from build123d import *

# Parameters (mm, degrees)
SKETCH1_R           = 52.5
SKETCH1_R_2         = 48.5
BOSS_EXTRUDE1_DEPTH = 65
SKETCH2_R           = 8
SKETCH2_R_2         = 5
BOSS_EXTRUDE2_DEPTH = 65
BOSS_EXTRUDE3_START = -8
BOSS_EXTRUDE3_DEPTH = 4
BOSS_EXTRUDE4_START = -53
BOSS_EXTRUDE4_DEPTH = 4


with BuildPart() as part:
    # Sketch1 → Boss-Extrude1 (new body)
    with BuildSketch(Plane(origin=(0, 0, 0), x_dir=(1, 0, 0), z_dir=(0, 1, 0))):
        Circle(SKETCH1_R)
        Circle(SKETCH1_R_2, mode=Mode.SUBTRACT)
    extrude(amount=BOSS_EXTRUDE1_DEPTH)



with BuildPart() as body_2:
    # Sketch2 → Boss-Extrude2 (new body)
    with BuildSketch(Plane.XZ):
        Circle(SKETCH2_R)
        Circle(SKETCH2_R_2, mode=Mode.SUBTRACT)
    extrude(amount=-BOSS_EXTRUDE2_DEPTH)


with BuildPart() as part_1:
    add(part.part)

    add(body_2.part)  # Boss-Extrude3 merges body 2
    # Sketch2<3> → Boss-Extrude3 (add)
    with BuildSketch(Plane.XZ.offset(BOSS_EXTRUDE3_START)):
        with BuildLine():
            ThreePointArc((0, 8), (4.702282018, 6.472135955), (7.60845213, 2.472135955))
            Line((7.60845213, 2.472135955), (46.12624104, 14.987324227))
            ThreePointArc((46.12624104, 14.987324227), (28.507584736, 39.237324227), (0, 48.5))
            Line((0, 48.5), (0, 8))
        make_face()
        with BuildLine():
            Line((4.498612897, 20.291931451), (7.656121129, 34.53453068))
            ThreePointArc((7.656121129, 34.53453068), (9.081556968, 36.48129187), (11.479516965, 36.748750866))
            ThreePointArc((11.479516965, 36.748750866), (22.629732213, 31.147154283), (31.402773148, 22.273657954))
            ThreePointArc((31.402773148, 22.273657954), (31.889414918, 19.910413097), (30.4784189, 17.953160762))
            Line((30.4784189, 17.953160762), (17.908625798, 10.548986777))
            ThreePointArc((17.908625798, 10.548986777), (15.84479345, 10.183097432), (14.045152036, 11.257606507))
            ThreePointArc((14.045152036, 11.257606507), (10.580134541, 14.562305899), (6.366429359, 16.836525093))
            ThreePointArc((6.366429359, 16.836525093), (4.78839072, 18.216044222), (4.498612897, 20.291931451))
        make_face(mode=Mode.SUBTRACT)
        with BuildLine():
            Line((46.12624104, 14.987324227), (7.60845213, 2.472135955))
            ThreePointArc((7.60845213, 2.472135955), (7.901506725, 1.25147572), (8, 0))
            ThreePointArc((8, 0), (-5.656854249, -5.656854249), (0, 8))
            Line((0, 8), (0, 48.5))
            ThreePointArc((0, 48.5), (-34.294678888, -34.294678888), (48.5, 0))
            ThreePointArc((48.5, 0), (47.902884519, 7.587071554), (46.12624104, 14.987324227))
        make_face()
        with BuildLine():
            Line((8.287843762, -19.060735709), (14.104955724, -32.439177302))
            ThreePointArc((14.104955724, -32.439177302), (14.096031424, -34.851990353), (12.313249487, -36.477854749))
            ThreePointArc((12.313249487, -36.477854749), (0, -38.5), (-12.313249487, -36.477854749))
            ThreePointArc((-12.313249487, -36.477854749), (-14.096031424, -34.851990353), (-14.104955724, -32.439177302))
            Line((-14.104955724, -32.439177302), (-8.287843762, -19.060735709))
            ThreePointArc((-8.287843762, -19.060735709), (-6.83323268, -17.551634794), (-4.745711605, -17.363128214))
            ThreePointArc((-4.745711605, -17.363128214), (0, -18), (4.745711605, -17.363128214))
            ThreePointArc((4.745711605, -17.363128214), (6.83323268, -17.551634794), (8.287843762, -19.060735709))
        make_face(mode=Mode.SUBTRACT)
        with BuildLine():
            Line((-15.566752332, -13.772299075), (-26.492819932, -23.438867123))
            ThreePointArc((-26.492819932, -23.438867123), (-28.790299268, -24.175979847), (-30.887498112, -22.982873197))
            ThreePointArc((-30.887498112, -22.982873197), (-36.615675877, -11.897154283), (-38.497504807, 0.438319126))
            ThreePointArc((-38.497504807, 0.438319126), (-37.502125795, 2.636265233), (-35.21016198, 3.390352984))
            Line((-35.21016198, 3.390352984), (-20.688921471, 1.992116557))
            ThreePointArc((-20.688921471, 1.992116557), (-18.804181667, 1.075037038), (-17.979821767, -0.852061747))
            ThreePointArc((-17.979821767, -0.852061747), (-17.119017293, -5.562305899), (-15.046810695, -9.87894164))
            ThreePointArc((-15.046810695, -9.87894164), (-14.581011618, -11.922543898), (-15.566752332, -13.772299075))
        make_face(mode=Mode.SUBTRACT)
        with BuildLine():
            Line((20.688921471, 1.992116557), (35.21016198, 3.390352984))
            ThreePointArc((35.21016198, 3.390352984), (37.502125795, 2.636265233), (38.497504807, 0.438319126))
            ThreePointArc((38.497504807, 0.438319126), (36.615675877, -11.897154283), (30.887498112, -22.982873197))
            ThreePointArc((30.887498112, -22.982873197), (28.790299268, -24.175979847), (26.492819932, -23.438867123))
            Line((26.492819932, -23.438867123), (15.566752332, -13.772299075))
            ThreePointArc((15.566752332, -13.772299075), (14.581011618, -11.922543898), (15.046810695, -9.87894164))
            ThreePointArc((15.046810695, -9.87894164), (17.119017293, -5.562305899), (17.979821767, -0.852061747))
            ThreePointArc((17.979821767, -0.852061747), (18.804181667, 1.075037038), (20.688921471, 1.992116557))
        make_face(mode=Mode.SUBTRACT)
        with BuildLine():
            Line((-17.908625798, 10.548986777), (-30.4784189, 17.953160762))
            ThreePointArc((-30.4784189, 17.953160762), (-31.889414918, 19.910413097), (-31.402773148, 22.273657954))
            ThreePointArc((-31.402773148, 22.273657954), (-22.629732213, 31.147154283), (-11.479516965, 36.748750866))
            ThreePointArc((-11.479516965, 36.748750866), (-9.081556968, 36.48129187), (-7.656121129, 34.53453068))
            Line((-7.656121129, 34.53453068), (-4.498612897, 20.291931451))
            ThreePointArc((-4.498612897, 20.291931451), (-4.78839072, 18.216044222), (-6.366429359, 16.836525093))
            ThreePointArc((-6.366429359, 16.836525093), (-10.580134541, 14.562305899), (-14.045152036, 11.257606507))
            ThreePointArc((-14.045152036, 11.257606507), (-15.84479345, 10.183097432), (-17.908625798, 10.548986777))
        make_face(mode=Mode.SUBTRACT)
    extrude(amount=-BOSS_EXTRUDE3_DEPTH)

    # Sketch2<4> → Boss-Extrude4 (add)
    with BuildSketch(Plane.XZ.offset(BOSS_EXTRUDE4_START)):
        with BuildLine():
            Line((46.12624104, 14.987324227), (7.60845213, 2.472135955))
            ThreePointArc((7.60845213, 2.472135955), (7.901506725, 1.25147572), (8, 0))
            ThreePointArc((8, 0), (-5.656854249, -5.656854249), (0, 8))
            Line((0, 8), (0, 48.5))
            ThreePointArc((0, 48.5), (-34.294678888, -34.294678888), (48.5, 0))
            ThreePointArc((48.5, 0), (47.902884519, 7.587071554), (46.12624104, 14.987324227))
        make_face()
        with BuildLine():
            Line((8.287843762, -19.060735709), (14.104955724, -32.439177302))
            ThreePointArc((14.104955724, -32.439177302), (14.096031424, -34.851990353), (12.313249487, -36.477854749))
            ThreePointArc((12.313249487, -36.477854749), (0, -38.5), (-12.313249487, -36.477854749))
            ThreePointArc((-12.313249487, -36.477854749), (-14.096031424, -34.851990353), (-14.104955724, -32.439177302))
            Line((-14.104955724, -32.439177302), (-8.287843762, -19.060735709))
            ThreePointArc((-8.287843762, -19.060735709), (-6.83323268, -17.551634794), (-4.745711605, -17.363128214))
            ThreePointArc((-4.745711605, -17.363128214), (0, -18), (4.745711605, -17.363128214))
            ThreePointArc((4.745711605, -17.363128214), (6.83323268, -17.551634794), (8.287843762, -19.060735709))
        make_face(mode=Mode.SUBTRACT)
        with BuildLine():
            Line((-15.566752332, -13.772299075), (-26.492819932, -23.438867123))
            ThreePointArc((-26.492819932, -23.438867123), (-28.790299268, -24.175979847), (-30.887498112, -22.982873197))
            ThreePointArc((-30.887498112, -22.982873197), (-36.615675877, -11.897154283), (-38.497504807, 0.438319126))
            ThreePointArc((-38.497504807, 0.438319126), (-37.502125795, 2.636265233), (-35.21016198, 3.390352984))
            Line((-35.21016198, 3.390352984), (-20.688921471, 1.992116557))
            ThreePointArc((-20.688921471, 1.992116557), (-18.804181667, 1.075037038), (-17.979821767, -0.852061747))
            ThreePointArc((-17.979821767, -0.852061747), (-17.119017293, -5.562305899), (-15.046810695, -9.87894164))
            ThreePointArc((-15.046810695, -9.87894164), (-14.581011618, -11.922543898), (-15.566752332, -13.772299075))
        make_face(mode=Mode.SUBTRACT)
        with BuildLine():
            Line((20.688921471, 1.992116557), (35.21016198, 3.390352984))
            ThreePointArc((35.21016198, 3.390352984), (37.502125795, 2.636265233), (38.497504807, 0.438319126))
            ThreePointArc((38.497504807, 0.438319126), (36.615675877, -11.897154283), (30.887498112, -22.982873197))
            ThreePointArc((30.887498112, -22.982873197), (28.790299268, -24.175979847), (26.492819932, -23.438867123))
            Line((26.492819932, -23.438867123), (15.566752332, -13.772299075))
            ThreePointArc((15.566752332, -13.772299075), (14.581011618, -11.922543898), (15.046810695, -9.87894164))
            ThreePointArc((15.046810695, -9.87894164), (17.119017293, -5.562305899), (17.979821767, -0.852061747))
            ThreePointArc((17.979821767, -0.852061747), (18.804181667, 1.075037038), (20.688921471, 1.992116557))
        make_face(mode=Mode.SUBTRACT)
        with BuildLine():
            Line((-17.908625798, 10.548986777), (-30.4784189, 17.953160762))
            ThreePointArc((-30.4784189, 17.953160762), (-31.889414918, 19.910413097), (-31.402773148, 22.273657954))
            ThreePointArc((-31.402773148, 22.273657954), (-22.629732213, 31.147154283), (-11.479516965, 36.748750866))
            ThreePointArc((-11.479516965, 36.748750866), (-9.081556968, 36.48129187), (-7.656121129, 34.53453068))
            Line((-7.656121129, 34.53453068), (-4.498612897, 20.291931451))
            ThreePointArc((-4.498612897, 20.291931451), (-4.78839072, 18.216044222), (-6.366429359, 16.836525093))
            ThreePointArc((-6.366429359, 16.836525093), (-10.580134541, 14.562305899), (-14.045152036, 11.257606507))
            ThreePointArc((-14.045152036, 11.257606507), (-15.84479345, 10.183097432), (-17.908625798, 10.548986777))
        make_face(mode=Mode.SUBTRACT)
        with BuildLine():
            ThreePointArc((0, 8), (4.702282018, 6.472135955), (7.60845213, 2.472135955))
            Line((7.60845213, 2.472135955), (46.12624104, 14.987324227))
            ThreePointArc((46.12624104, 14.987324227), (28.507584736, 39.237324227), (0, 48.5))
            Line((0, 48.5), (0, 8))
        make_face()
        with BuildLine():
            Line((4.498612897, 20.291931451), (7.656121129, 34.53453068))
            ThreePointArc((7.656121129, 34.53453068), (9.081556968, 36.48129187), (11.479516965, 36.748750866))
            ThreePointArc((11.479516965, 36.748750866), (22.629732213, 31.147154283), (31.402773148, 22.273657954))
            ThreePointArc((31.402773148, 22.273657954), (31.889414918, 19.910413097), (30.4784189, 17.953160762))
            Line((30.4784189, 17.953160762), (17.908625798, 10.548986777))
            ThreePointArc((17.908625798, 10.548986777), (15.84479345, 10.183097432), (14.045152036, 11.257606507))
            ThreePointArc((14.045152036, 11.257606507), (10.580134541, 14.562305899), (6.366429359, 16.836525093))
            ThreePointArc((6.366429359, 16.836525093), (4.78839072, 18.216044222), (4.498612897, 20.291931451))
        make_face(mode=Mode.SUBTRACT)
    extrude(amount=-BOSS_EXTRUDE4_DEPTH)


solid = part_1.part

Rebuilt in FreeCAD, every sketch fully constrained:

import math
import FreeCAD as App
import Part
import Sketcher
from FreeCAD import Vector
Q = App.Units.Quantity

doc = App.newDocument("Part")
body = doc.addObject("PartDesign::Body", "Body")

sketch1 = body.newObject("Sketcher::SketchObject", "Sketch")
sketch1.AttachmentSupport = (doc.getObject("XZ_Plane"), [""])
sketch1.MapMode = "FlatFace"
sketch1.addGeometry([
    Part.Circle(Vector(0, 0, 0), Vector(0, 0, 1), 52),
    Part.Circle(Vector(0, 0, 0), Vector(0, 0, 1), 48),
], False)
sketch1.addConstraint([
    Sketcher.Constraint("Coincident", 0, 3, -1, 1),
    Sketcher.Constraint("Coincident", 1, 3, -1, 1),
    Sketcher.Constraint("Diameter", 0, 105.0),
    Sketcher.Constraint("Diameter", 1, 97.0),
])
pad1 = body.newObject("PartDesign::Pad", "Pad")
pad1.Profile = sketch1
pad1.Length = 65
pad1.Reversed = True
body2 = doc.addObject("PartDesign::Body", "Body001")

sketch2 = body2.newObject("Sketcher::SketchObject", "Sketch001")
sketch2.AttachmentSupport = (doc.getObject("XZ_Plane001"), [""])
sketch2.MapMode = "FlatFace"
sketch2.addGeometry([
    Part.Circle(Vector(0, 0, 0), Vector(0, 0, 1), 8),
    Part.Circle(Vector(0, 0, 0), Vector(0, 0, 1), 5),
], False)
sketch2.addConstraint([
    Sketcher.Constraint("Coincident", 0, 3, -1, 1),
    Sketcher.Constraint("Coincident", 1, 3, -1, 1),
    Sketcher.Constraint("Diameter", 0, 16.0),
    Sketcher.Constraint("Diameter", 1, 10.0),
])
pad2 = body2.newObject("PartDesign::Pad", "Pad001")
pad2.Profile = sketch2
pad2.Length = 65
pad2.Reversed = True
body.AllowCompound = True
doc.recompute()

boolean = body.newObject("PartDesign::Boolean", "Boolean")
boolean.Type = "Fuse"
boolean.addObjects([body2])

sketch3 = body.newObject("Sketcher::SketchObject", "Sketch002")
sketch3.AttachmentSupport = (doc.getObject("XZ_Plane"), [""])
sketch3.MapMode = "FlatFace"
sketch3.AttachmentOffset = App.Placement(Vector(0, 0, -8), App.Rotation())
sketch3.addGeometry([
    Part.ArcOfCircle(Part.Circle(Vector(0, 0, 0), Vector(0, 0, 1), 48.5), math.radians(18), math.radians(90)),
    Part.ArcOfCircle(Part.Circle(Vector(0, 0, 0), Vector(0, 0, 1), 48.5), math.radians(90), math.radians(360)),
    Part.ArcOfCircle(Part.Circle(Vector(0, 0, 0), Vector(0, 0, 1), 48.5), math.radians(0), math.radians(18)),
    Part.ArcOfCircle(Part.Circle(Vector(-17.6, -11.5, 0), Vector(0, 0, 1), 3), math.radians(-48), math.radians(33)),
    Part.LineSegment(Vector(-15.6, -13.8, 0), Vector(-26.5, -23.4, 0)),
    Part.ArcOfCircle(Part.Circle(Vector(-28.5, -21.2, 0), Vector(0, 0, 1), 3), math.radians(-143), math.radians(-48)),
    Part.ArcOfCircle(Part.Circle(Vector(0, 0, 0), Vector(0, 0, 1), 38.5), math.radians(179), math.radians(217)),
    Part.ArcOfCircle(Part.Circle(Vector(-35.5, 0.4, 0), Vector(0, 0, 1), 3), math.radians(84), math.radians(179)),
    Part.LineSegment(Vector(-35.2, 3.4, 0), Vector(-20.7, 2, 0)),
    Part.ArcOfCircle(Part.Circle(Vector(-21, -1, 0), Vector(0, 0, 1), 3), math.radians(3), math.radians(85)),
    Part.ArcOfCircle(Part.Circle(Vector(0, 0, 0), Vector(0, 0, 1), 18), math.radians(-177), math.radians(-147)),
    Part.ArcOfCircle(Part.Circle(Vector(5.5, -20.3, 0), Vector(0, 0, 1), 3), math.radians(24), math.radians(105)),
    Part.LineSegment(Vector(8.3, -19.1, 0), Vector(14.1, -32.4, 0)),
    Part.ArcOfCircle(Part.Circle(Vector(11.4, -33.6, 0), Vector(0, 0, 1), 3), math.radians(-71), math.radians(24)),
    Part.ArcOfCircle(Part.Circle(Vector(0, 0, 0), Vector(0, 0, 1), 38.5), math.radians(-109), math.radians(-71)),
    Part.ArcOfCircle(Part.Circle(Vector(-11.4, -33.6, 0), Vector(0, 0, 1), 3), math.radians(156), math.radians(251)),
    Part.LineSegment(Vector(-14.1, -32.4, 0), Vector(-8.3, -19.1, 0)),
    Part.ArcOfCircle(Part.Circle(Vector(-5.5, -20.3, 0), Vector(0, 0, 1), 3), math.radians(75), math.radians(156)),
    Part.ArcOfCircle(Part.Circle(Vector(0, 0, 0), Vector(0, 0, 1), 18), math.radians(-105), math.radians(-75)),
    Part.ArcOfCircle(Part.Circle(Vector(21, -1, 0), Vector(0, 0, 1), 3), math.radians(95), math.radians(177)),
    Part.LineSegment(Vector(20.7, 2, 0), Vector(35.2, 3.4, 0)),
    Part.ArcOfCircle(Part.Circle(Vector(35.5, 0.4, 0), Vector(0, 0, 1), 3), math.radians(1), math.radians(96)),
    Part.ArcOfCircle(Part.Circle(Vector(0, 0, 0), Vector(0, 0, 1), 38.5), math.radians(-37), math.radians(1)),
    Part.ArcOfCircle(Part.Circle(Vector(28.5, -21.2, 0), Vector(0, 0, 1), 3), math.radians(-132), math.radians(-37)),
    Part.LineSegment(Vector(26.5, -23.4, 0), Vector(15.6, -13.8, 0)),
    Part.ArcOfCircle(Part.Circle(Vector(17.6, -11.5, 0), Vector(0, 0, 1), 3), math.radians(147), math.radians(228)),
    Part.ArcOfCircle(Part.Circle(Vector(0, 0, 0), Vector(0, 0, 1), 18), math.radians(-33), math.radians(-3)),
    Part.ArcOfCircle(Part.Circle(Vector(-16.4, 13.1, 0), Vector(0, 0, 1), 3), math.radians(-120), math.radians(-39)),
    Part.LineSegment(Vector(-17.9, 10.5, 0), Vector(-30.5, 18, 0)),
    Part.ArcOfCircle(Part.Circle(Vector(-29, 20.5, 0), Vector(0, 0, 1), 3), math.radians(145), math.radians(240)),
    Part.ArcOfCircle(Part.Circle(Vector(0, 0, 0), Vector(0, 0, 1), 38.5), math.radians(107), math.radians(145)),
    Part.ArcOfCircle(Part.Circle(Vector(-10.6, 33.9, 0), Vector(0, 0, 1), 3), math.radians(13), math.radians(107)),
    Part.LineSegment(Vector(-7.7, 34.5, 0), Vector(-4.5, 20.3, 0)),
    Part.ArcOfCircle(Part.Circle(Vector(-7.4, 19.6, 0), Vector(0, 0, 1), 3), math.radians(-69), math.radians(13)),
    Part.ArcOfCircle(Part.Circle(Vector(0, 0, 0), Vector(0, 0, 1), 18), math.radians(111), math.radians(141)),
    Part.ArcOfCircle(Part.Circle(Vector(0, 0, 0), Vector(0, 0, 1), 8), math.radians(18), math.radians(90)),
    Part.ArcOfCircle(Part.Circle(Vector(0, 0, 0), Vector(0, 0, 1), 8), math.radians(0), math.radians(18)),
    Part.ArcOfCircle(Part.Circle(Vector(0, 0, 0), Vector(0, 0, 1), 8), math.radians(90), math.radians(360)),
    Part.ArcOfCircle(Part.Circle(Vector(7.4, 19.6, 0), Vector(0, 0, 1), 3), math.radians(167), math.radians(249)),
    Part.LineSegment(Vector(4.5, 20.3, 0), Vector(7.7, 34.5, 0)),
    Part.ArcOfCircle(Part.Circle(Vector(10.6, 33.9, 0), Vector(0, 0, 1), 3), math.radians(73), math.radians(167)),
    Part.ArcOfCircle(Part.Circle(Vector(0, 0, 0), Vector(0, 0, 1), 38.5), math.radians(35), math.radians(73)),
    Part.ArcOfCircle(Part.Circle(Vector(29, 20.5, 0), Vector(0, 0, 1), 3), math.radians(-60), math.radians(35)),
    Part.LineSegment(Vector(30.5, 18, 0), Vector(17.9, 10.5, 0)),
    Part.ArcOfCircle(Part.Circle(Vector(16.4, 13.1, 0), Vector(0, 0, 1), 3), math.radians(-141), math.radians(-60)),
    Part.ArcOfCircle(Part.Circle(Vector(0, 0, 0), Vector(0, 0, 1), 18), math.radians(39), math.radians(69)),
], False)
sketch3.addConstraint([
    Sketcher.Constraint("Tangent", 0, 2, 1, 1),
    Sketcher.Constraint("Tangent", 1, 2, 2, 1),
    Sketcher.Constraint("Tangent", 2, 2, 0, 1),
    Sketcher.Constraint("Tangent", 3, 1, 4, 1),
    Sketcher.Constraint("Tangent", 4, 2, 5, 2),
    Sketcher.Constraint("Tangent", 5, 1, 6, 2),
    Sketcher.Constraint("Tangent", 6, 1, 7, 2),
    Sketcher.Constraint("Tangent", 7, 1, 8, 1),
    Sketcher.Constraint("Tangent", 8, 2, 9, 2),
    Sketcher.Constraint("Tangent", 9, 1, 10, 1),
    Sketcher.Constraint("Tangent", 10, 2, 3, 2),
    Sketcher.Constraint("Tangent", 11, 1, 12, 1),
    Sketcher.Constraint("Tangent", 12, 2, 13, 2),
    Sketcher.Constraint("Tangent", 13, 1, 14, 2),
    Sketcher.Constraint("Tangent", 14, 1, 15, 2),
    Sketcher.Constraint("Tangent", 15, 1, 16, 1),
    Sketcher.Constraint("Tangent", 16, 2, 17, 2),
    Sketcher.Constraint("Tangent", 17, 1, 18, 1),
    Sketcher.Constraint("Tangent", 18, 2, 11, 2),
    Sketcher.Constraint("Tangent", 19, 1, 20, 1),
    Sketcher.Constraint("Tangent", 20, 2, 21, 2),
    Sketcher.Constraint("Tangent", 21, 1, 22, 2),
    Sketcher.Constraint("Tangent", 22, 1, 23, 2),
    Sketcher.Constraint("Tangent", 23, 1, 24, 1),
    Sketcher.Constraint("Tangent", 24, 2, 25, 2),
    Sketcher.Constraint("Tangent", 25, 1, 26, 1),
    Sketcher.Constraint("Tangent", 26, 2, 19, 2),
    Sketcher.Constraint("Tangent", 27, 1, 28, 1),
    Sketcher.Constraint("Tangent", 28, 2, 29, 2),
    Sketcher.Constraint("Tangent", 29, 1, 30, 2),
    Sketcher.Constraint("Tangent", 30, 1, 31, 2),
    Sketcher.Constraint("Tangent", 31, 1, 32, 1),
    Sketcher.Constraint("Tangent", 32, 2, 33, 2),
    Sketcher.Constraint("Tangent", 33, 1, 34, 1),
    Sketcher.Constraint("Tangent", 34, 2, 27, 2),
    Sketcher.Constraint("Tangent", 35, 1, 36, 2),
    Sketcher.Constraint("Tangent", 36, 1, 37, 2),
    Sketcher.Constraint("Tangent", 37, 1, 35, 2),
    Sketcher.Constraint("Tangent", 38, 1, 39, 1),
    Sketcher.Constraint("Tangent", 39, 2, 40, 2),
    Sketcher.Constraint("Tangent", 40, 1, 41, 2),
    Sketcher.Constraint("Tangent", 41, 1, 42, 2),
    Sketcher.Constraint("Tangent", 42, 1, 43, 1),
    Sketcher.Constraint("Tangent", 43, 2, 44, 2),
    Sketcher.Constraint("Tangent", 44, 1, 45, 1),
    Sketcher.Constraint("Tangent", 45, 2, 38, 2),
    Sketcher.Constraint("Coincident", 0, 3, -1, 1),
    Sketcher.Constraint("Coincident", 6, 3, -1, 1),
    Sketcher.Constraint("Coincident", 10, 3, -1, 1),
    Sketcher.Constraint("Coincident", 14, 3, -1, 1),
    Sketcher.Constraint("Coincident", 18, 3, -1, 1),
    Sketcher.Constraint("Coincident", 22, 3, -1, 1),
    Sketcher.Constraint("Coincident", 26, 3, -1, 1),
    Sketcher.Constraint("Coincident", 30, 3, -1, 1),
    Sketcher.Constraint("Coincident", 34, 3, -1, 1),
    Sketcher.Constraint("Coincident", 35, 3, -1, 1),
    Sketcher.Constraint("Coincident", 41, 3, -1, 1),
    Sketcher.Constraint("Coincident", 45, 3, -1, 1),
    Sketcher.Constraint("Equal", 3, 5),
    Sketcher.Constraint("Equal", 5, 7),
    Sketcher.Constraint("Equal", 7, 9),
    Sketcher.Constraint("Equal", 9, 11),
    Sketcher.Constraint("Equal", 11, 13),
    Sketcher.Constraint("Equal", 6, 14),
    Sketcher.Constraint("Equal", 13, 15),
    Sketcher.Constraint("Equal", 15, 17),
    Sketcher.Constraint("Equal", 10, 18),
    Sketcher.Constraint("Equal", 17, 19),
    Sketcher.Constraint("Equal", 19, 21),
    Sketcher.Constraint("Equal", 14, 22),
    Sketcher.Constraint("Equal", 21, 23),
    Sketcher.Constraint("Equal", 23, 25),
    Sketcher.Constraint("Equal", 18, 26),
    Sketcher.Constraint("Equal", 25, 27),
    Sketcher.Constraint("Equal", 27, 29),
    Sketcher.Constraint("Equal", 22, 30),
    Sketcher.Constraint("Equal", 29, 31),
    Sketcher.Constraint("Equal", 31, 33),
    Sketcher.Constraint("Equal", 26, 34),
    Sketcher.Constraint("Equal", 33, 38),
    Sketcher.Constraint("Equal", 38, 40),
    Sketcher.Constraint("Equal", 30, 41),
    Sketcher.Constraint("Equal", 40, 42),
    Sketcher.Constraint("Equal", 42, 44),
    Sketcher.Constraint("Equal", 34, 45),
    Sketcher.Constraint("Symmetric", 12, 2, 15, 1, -2),
    Sketcher.Constraint("Symmetric", 8, 2, 19, 1, -2),
    Sketcher.Constraint("Symmetric", 4, 2, 23, 1, -2),
    Sketcher.Constraint("Symmetric", 32, 2, 38, 1, -2),
    Sketcher.Constraint("Symmetric", 28, 2, 42, 1, -2),
    Sketcher.Constraint("PointOnObject", 0, 2, -2),
    Sketcher.Constraint("PointOnObject", 1, 2, -1),
    Sketcher.Constraint("PointOnObject", 36, 1, -1),
    Sketcher.Constraint("PointOnObject", 37, 1, -2),
    Sketcher.Constraint("Equal", 4, 8),
    Sketcher.Constraint("Equal", 8, 12),
    Sketcher.Constraint("Equal", 24, 28),
    Sketcher.Constraint("Equal", 28, 32),
    Sketcher.Constraint("Radius", 3, 3.0),
    Sketcher.Constraint("Radius", 10, 18.0),
    Sketcher.Constraint("Radius", 35, 8.0),
    Sketcher.Constraint("Radius", 0, 48.5),
    Sketcher.Constraint("Radius", 6, 38.5),
    Sketcher.Constraint("Angle", 4, Q("-138.5 deg")),
    Sketcher.Constraint("Angle", 8, Q("-5.5 deg")),
    Sketcher.Constraint("Angle", 12, Q("-66.5 deg")),
    Sketcher.Constraint("Angle", 28, Q("149.5 deg")),
    Sketcher.Constraint("Angle", 32, Q("-77.5 deg")),
    Sketcher.Constraint("DistanceY", 5, 3, -1, 1, 21.192),
    Sketcher.Constraint("DistanceX", -1, 1, 2, 2, 46.126241),
    Sketcher.Constraint("DistanceX", -1, 1, 35, 1, 7.608452),
])
pad3 = body.newObject("PartDesign::Pad", "Pad002")
pad3.Profile = sketch3
pad3.Length = 4
pad3.Reversed = True

sketch4 = body.newObject("Sketcher::SketchObject", "Sketch003")
sketch4.AttachmentSupport = (doc.getObject("XZ_Plane"), [""])
sketch4.MapMode = "FlatFace"
sketch4.AttachmentOffset = App.Placement(Vector(0, 0, -53), App.Rotation())
sketch4.addGeometry([
    Part.ArcOfCircle(Part.Circle(Vector(0, 0, 0), Vector(0, 0, 1), 48.5), math.radians(0), math.radians(18)),
    Part.ArcOfCircle(Part.Circle(Vector(0, 0, 0), Vector(0, 0, 1), 48.5), math.radians(18), math.radians(90)),
    Part.ArcOfCircle(Part.Circle(Vector(0, 0, 0), Vector(0, 0, 1), 48.5), math.radians(90), math.radians(360)),
    Part.ArcOfCircle(Part.Circle(Vector(-17.6, -11.5, 0), Vector(0, 0, 1), 3), math.radians(-48), math.radians(33)),
    Part.LineSegment(Vector(-15.6, -13.8, 0), Vector(-26.5, -23.4, 0)),
    Part.ArcOfCircle(Part.Circle(Vector(-28.5, -21.2, 0), Vector(0, 0, 1), 3), math.radians(-143), math.radians(-48)),
    Part.ArcOfCircle(Part.Circle(Vector(0, 0, 0), Vector(0, 0, 1), 38.5), math.radians(179), math.radians(217)),
    Part.ArcOfCircle(Part.Circle(Vector(-35.5, 0.4, 0), Vector(0, 0, 1), 3), math.radians(84), math.radians(179)),
    Part.LineSegment(Vector(-35.2, 3.4, 0), Vector(-20.7, 2, 0)),
    Part.ArcOfCircle(Part.Circle(Vector(-21, -1, 0), Vector(0, 0, 1), 3), math.radians(3), math.radians(85)),
    Part.ArcOfCircle(Part.Circle(Vector(0, 0, 0), Vector(0, 0, 1), 18), math.radians(-177), math.radians(-147)),
    Part.ArcOfCircle(Part.Circle(Vector(5.5, -20.3, 0), Vector(0, 0, 1), 3), math.radians(24), math.radians(105)),
    Part.LineSegment(Vector(8.3, -19.1, 0), Vector(14.1, -32.4, 0)),
    Part.ArcOfCircle(Part.Circle(Vector(11.4, -33.6, 0), Vector(0, 0, 1), 3), math.radians(-71), math.radians(24)),
    Part.ArcOfCircle(Part.Circle(Vector(0, 0, 0), Vector(0, 0, 1), 38.5), math.radians(-109), math.radians(-71)),
    Part.ArcOfCircle(Part.Circle(Vector(-11.4, -33.6, 0), Vector(0, 0, 1), 3), math.radians(156), math.radians(251)),
    Part.LineSegment(Vector(-14.1, -32.4, 0), Vector(-8.3, -19.1, 0)),
    Part.ArcOfCircle(Part.Circle(Vector(-5.5, -20.3, 0), Vector(0, 0, 1), 3), math.radians(75), math.radians(156)),
    Part.ArcOfCircle(Part.Circle(Vector(0, 0, 0), Vector(0, 0, 1), 18), math.radians(-105), math.radians(-75)),
    Part.ArcOfCircle(Part.Circle(Vector(21, -1, 0), Vector(0, 0, 1), 3), math.radians(95), math.radians(177)),
    Part.LineSegment(Vector(20.7, 2, 0), Vector(35.2, 3.4, 0)),
    Part.ArcOfCircle(Part.Circle(Vector(35.5, 0.4, 0), Vector(0, 0, 1), 3), math.radians(1), math.radians(96)),
    Part.ArcOfCircle(Part.Circle(Vector(0, 0, 0), Vector(0, 0, 1), 38.5), math.radians(-37), math.radians(1)),
    Part.ArcOfCircle(Part.Circle(Vector(28.5, -21.2, 0), Vector(0, 0, 1), 3), math.radians(-132), math.radians(-37)),
    Part.LineSegment(Vector(26.5, -23.4, 0), Vector(15.6, -13.8, 0)),
    Part.ArcOfCircle(Part.Circle(Vector(17.6, -11.5, 0), Vector(0, 0, 1), 3), math.radians(147), math.radians(228)),
    Part.ArcOfCircle(Part.Circle(Vector(0, 0, 0), Vector(0, 0, 1), 18), math.radians(-33), math.radians(-3)),
    Part.ArcOfCircle(Part.Circle(Vector(-16.4, 13.1, 0), Vector(0, 0, 1), 3), math.radians(-120), math.radians(-39)),
    Part.LineSegment(Vector(-17.9, 10.5, 0), Vector(-30.5, 18, 0)),
    Part.ArcOfCircle(Part.Circle(Vector(-29, 20.5, 0), Vector(0, 0, 1), 3), math.radians(145), math.radians(240)),
    Part.ArcOfCircle(Part.Circle(Vector(0, 0, 0), Vector(0, 0, 1), 38.5), math.radians(107), math.radians(145)),
    Part.ArcOfCircle(Part.Circle(Vector(-10.6, 33.9, 0), Vector(0, 0, 1), 3), math.radians(13), math.radians(107)),
    Part.LineSegment(Vector(-7.7, 34.5, 0), Vector(-4.5, 20.3, 0)),
    Part.ArcOfCircle(Part.Circle(Vector(-7.4, 19.6, 0), Vector(0, 0, 1), 3), math.radians(-69), math.radians(13)),
    Part.ArcOfCircle(Part.Circle(Vector(0, 0, 0), Vector(0, 0, 1), 18), math.radians(111), math.radians(141)),
    Part.ArcOfCircle(Part.Circle(Vector(0, 0, 0), Vector(0, 0, 1), 8), math.radians(0), math.radians(18)),
    Part.ArcOfCircle(Part.Circle(Vector(0, 0, 0), Vector(0, 0, 1), 8), math.radians(90), math.radians(360)),
    Part.ArcOfCircle(Part.Circle(Vector(0, 0, 0), Vector(0, 0, 1), 8), math.radians(18), math.radians(90)),
    Part.ArcOfCircle(Part.Circle(Vector(7.4, 19.6, 0), Vector(0, 0, 1), 3), math.radians(167), math.radians(249)),
    Part.LineSegment(Vector(4.5, 20.3, 0), Vector(7.7, 34.5, 0)),
    Part.ArcOfCircle(Part.Circle(Vector(10.6, 33.9, 0), Vector(0, 0, 1), 3), math.radians(73), math.radians(167)),
    Part.ArcOfCircle(Part.Circle(Vector(0, 0, 0), Vector(0, 0, 1), 38.5), math.radians(35), math.radians(73)),
    Part.ArcOfCircle(Part.Circle(Vector(29, 20.5, 0), Vector(0, 0, 1), 3), math.radians(-60), math.radians(35)),
    Part.LineSegment(Vector(30.5, 18, 0), Vector(17.9, 10.5, 0)),
    Part.ArcOfCircle(Part.Circle(Vector(16.4, 13.1, 0), Vector(0, 0, 1), 3), math.radians(-141), math.radians(-60)),
    Part.ArcOfCircle(Part.Circle(Vector(0, 0, 0), Vector(0, 0, 1), 18), math.radians(39), math.radians(69)),
], False)
sketch4.addConstraint([
    Sketcher.Constraint("Tangent", 0, 2, 1, 1),
    Sketcher.Constraint("Tangent", 1, 2, 2, 1),
    Sketcher.Constraint("Tangent", 2, 2, 0, 1),
    Sketcher.Constraint("Tangent", 3, 1, 4, 1),
    Sketcher.Constraint("Tangent", 4, 2, 5, 2),
    Sketcher.Constraint("Tangent", 5, 1, 6, 2),
    Sketcher.Constraint("Tangent", 6, 1, 7, 2),
    Sketcher.Constraint("Tangent", 7, 1, 8, 1),
    Sketcher.Constraint("Tangent", 8, 2, 9, 2),
    Sketcher.Constraint("Tangent", 9, 1, 10, 1),
    Sketcher.Constraint("Tangent", 10, 2, 3, 2),
    Sketcher.Constraint("Tangent", 11, 1, 12, 1),
    Sketcher.Constraint("Tangent", 12, 2, 13, 2),
    Sketcher.Constraint("Tangent", 13, 1, 14, 2),
    Sketcher.Constraint("Tangent", 14, 1, 15, 2),
    Sketcher.Constraint("Tangent", 15, 1, 16, 1),
    Sketcher.Constraint("Tangent", 16, 2, 17, 2),
    Sketcher.Constraint("Tangent", 17, 1, 18, 1),
    Sketcher.Constraint("Tangent", 18, 2, 11, 2),
    Sketcher.Constraint("Tangent", 19, 1, 20, 1),
    Sketcher.Constraint("Tangent", 20, 2, 21, 2),
    Sketcher.Constraint("Tangent", 21, 1, 22, 2),
    Sketcher.Constraint("Tangent", 22, 1, 23, 2),
    Sketcher.Constraint("Tangent", 23, 1, 24, 1),
    Sketcher.Constraint("Tangent", 24, 2, 25, 2),
    Sketcher.Constraint("Tangent", 25, 1, 26, 1),
    Sketcher.Constraint("Tangent", 26, 2, 19, 2),
    Sketcher.Constraint("Tangent", 27, 1, 28, 1),
    Sketcher.Constraint("Tangent", 28, 2, 29, 2),
    Sketcher.Constraint("Tangent", 29, 1, 30, 2),
    Sketcher.Constraint("Tangent", 30, 1, 31, 2),
    Sketcher.Constraint("Tangent", 31, 1, 32, 1),
    Sketcher.Constraint("Tangent", 32, 2, 33, 2),
    Sketcher.Constraint("Tangent", 33, 1, 34, 1),
    Sketcher.Constraint("Tangent", 34, 2, 27, 2),
    Sketcher.Constraint("Tangent", 35, 1, 36, 2),
    Sketcher.Constraint("Tangent", 36, 1, 37, 2),
    Sketcher.Constraint("Tangent", 37, 1, 35, 2),
    Sketcher.Constraint("Tangent", 38, 1, 39, 1),
    Sketcher.Constraint("Tangent", 39, 2, 40, 2),
    Sketcher.Constraint("Tangent", 40, 1, 41, 2),
    Sketcher.Constraint("Tangent", 41, 1, 42, 2),
    Sketcher.Constraint("Tangent", 42, 1, 43, 1),
    Sketcher.Constraint("Tangent", 43, 2, 44, 2),
    Sketcher.Constraint("Tangent", 44, 1, 45, 1),
    Sketcher.Constraint("Tangent", 45, 2, 38, 2),
    Sketcher.Constraint("Coincident", 0, 3, -1, 1),
    Sketcher.Constraint("Coincident", 6, 3, -1, 1),
    Sketcher.Constraint("Coincident", 10, 3, -1, 1),
    Sketcher.Constraint("Coincident", 14, 3, -1, 1),
    Sketcher.Constraint("Coincident", 18, 3, -1, 1),
    Sketcher.Constraint("Coincident", 22, 3, -1, 1),
    Sketcher.Constraint("Coincident", 26, 3, -1, 1),
    Sketcher.Constraint("Coincident", 30, 3, -1, 1),
    Sketcher.Constraint("Coincident", 34, 3, -1, 1),
    Sketcher.Constraint("Coincident", 35, 3, -1, 1),
    Sketcher.Constraint("Coincident", 41, 3, -1, 1),
    Sketcher.Constraint("Coincident", 45, 3, -1, 1),
    Sketcher.Constraint("Equal", 3, 5),
    Sketcher.Constraint("Equal", 5, 7),
    Sketcher.Constraint("Equal", 7, 9),
    Sketcher.Constraint("Equal", 9, 11),
    Sketcher.Constraint("Equal", 11, 13),
    Sketcher.Constraint("Equal", 6, 14),
    Sketcher.Constraint("Equal", 13, 15),
    Sketcher.Constraint("Equal", 15, 17),
    Sketcher.Constraint("Equal", 10, 18),
    Sketcher.Constraint("Equal", 17, 19),
    Sketcher.Constraint("Equal", 19, 21),
    Sketcher.Constraint("Equal", 14, 22),
    Sketcher.Constraint("Equal", 21, 23),
    Sketcher.Constraint("Equal", 23, 25),
    Sketcher.Constraint("Equal", 18, 26),
    Sketcher.Constraint("Equal", 25, 27),
    Sketcher.Constraint("Equal", 27, 29),
    Sketcher.Constraint("Equal", 22, 30),
    Sketcher.Constraint("Equal", 29, 31),
    Sketcher.Constraint("Equal", 31, 33),
    Sketcher.Constraint("Equal", 26, 34),
    Sketcher.Constraint("Equal", 33, 38),
    Sketcher.Constraint("Equal", 38, 40),
    Sketcher.Constraint("Equal", 30, 41),
    Sketcher.Constraint("Equal", 40, 42),
    Sketcher.Constraint("Equal", 42, 44),
    Sketcher.Constraint("Equal", 34, 45),
    Sketcher.Constraint("Symmetric", 12, 2, 15, 1, -2),
    Sketcher.Constraint("Symmetric", 8, 2, 19, 1, -2),
    Sketcher.Constraint("Symmetric", 4, 2, 23, 1, -2),
    Sketcher.Constraint("Symmetric", 32, 2, 38, 1, -2),
    Sketcher.Constraint("Symmetric", 28, 2, 42, 1, -2),
    Sketcher.Constraint("PointOnObject", 1, 2, -2),
    Sketcher.Constraint("PointOnObject", 2, 2, -1),
    Sketcher.Constraint("PointOnObject", 35, 1, -1),
    Sketcher.Constraint("PointOnObject", 36, 1, -2),
    Sketcher.Constraint("Equal", 4, 8),
    Sketcher.Constraint("Equal", 8, 12),
    Sketcher.Constraint("Equal", 24, 28),
    Sketcher.Constraint("Equal", 28, 32),
    Sketcher.Constraint("Radius", 3, 3.0),
    Sketcher.Constraint("Radius", 10, 18.0),
    Sketcher.Constraint("Radius", 35, 8.0),
    Sketcher.Constraint("Radius", 0, 48.5),
    Sketcher.Constraint("Radius", 6, 38.5),
    Sketcher.Constraint("Angle", 4, Q("-138.5 deg")),
    Sketcher.Constraint("Angle", 8, Q("-5.5 deg")),
    Sketcher.Constraint("Angle", 12, Q("-66.5 deg")),
    Sketcher.Constraint("Angle", 28, Q("149.5 deg")),
    Sketcher.Constraint("Angle", 32, Q("-77.5 deg")),
    Sketcher.Constraint("DistanceY", 5, 3, -1, 1, 21.192),
    Sketcher.Constraint("DistanceX", -1, 1, 0, 2, 46.126241),
    Sketcher.Constraint("DistanceX", -1, 1, 37, 1, 7.608452),
])
pad4 = body.newObject("PartDesign::Pad", "Pad003")
pad4.Profile = sketch4
pad4.Length = 4
pad4.Reversed = True

doc.recompute()
